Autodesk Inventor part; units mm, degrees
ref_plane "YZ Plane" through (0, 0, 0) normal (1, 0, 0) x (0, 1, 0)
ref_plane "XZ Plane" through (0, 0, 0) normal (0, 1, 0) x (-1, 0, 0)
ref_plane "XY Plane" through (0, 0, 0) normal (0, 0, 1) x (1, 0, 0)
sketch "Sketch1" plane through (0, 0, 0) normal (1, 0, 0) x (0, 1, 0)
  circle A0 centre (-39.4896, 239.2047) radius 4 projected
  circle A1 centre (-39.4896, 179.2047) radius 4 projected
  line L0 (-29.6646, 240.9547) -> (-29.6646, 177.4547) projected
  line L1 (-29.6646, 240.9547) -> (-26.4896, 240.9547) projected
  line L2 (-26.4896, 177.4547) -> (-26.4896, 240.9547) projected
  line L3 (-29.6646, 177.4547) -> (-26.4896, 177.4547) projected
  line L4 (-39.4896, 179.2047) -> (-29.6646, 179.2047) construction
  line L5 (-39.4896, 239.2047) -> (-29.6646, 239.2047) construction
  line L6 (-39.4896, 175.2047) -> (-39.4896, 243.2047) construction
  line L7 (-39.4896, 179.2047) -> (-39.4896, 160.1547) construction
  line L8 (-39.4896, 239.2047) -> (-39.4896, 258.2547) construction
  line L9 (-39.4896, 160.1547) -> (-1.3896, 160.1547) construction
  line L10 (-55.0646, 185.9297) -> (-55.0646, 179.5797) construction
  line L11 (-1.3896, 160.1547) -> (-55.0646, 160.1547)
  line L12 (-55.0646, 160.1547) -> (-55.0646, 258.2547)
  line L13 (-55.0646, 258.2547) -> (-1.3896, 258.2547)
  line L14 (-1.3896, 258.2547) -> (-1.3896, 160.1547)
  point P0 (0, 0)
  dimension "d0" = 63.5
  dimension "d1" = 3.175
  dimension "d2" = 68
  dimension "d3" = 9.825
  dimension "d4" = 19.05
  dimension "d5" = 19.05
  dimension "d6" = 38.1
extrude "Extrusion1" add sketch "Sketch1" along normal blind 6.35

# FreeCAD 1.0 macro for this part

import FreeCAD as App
import Part
import Sketcher
Q = App.Units.Quantity


def add_polygon(sketch, points):
    """Adds a closed chain of lines whose ends are joined by coincident constraints."""
    first, n = sketch.GeometryCount, len(points)
    for a, b in zip(points, points[1:] + points[:1]):
        sketch.addGeometry(Part.LineSegment(App.Vector(*a, 0), App.Vector(*b, 0)), False)
    for i in range(n):
        sketch.addConstraint(Sketcher.Constraint("Coincident", first + i, 2, first + (i + 1) % n, 1))

doc = App.newDocument("Part")
body = doc.addObject("PartDesign::Body", "Body")

# Sketch on YZ plane
sketch1 = body.newObject("Sketcher::SketchObject", "Sketch")
sketch1.AttachmentSupport = (doc.getObject("YZ_Plane"), [""])
sketch1.MapMode = "FlatFace"
add_polygon(sketch1, [(-55.1, 160.2), (-1.4, 160.2), (-1.4, 258.3), (-55.1, 258.3)])  # lines 0-3
sketch1.addGeometry(Part.Circle(App.Vector(-39.5, 179.2, 0), App.Vector(0, 0, 1), 4), False)  # 4
add_polygon(sketch1, [(-29.7, 177.5), (-29.7, 241), (-26.5, 241), (-26.5, 177.5)])  # lines 5-8
sketch1.addGeometry(Part.Circle(App.Vector(-39.5, 239.2, 0), App.Vector(0, 0, 1), 4), False)  # 9
sketch1.addConstraint([
    Sketcher.Constraint("Horizontal", 0),
    Sketcher.Constraint("Vertical", 1),
    Sketcher.Constraint("Horizontal", 2),
    Sketcher.Constraint("Vertical", 3),
    Sketcher.Constraint("Vertical", 5),
    Sketcher.Constraint("Horizontal", 6),
    Sketcher.Constraint("Vertical", 7),
    Sketcher.Constraint("Horizontal", 8),
    Sketcher.Constraint("Equal", 4, 9),
    Sketcher.Constraint("Vertical", 4, 3, 9, 3),
    Sketcher.Constraint("DistanceY", 5, 1, 5, 2, Q("2.5 in")),
    Sketcher.Constraint("DistanceX", 4, 3, 0, 2, Q("1.5 in")),
    Sketcher.Constraint("DistanceX", 6, 1, 6, 2, Q("0.125 in")),
    Sketcher.Constraint("DistanceY", 0, 2, 4, 3, Q("0.75 in")),
    Sketcher.Constraint("DistanceY", 9, 3, 1, 2, Q("0.75 in")),
    Sketcher.Constraint("DistanceX", 2, 2, 5, 2, Q("1 in")),
    Sketcher.Constraint("DistanceX", 9, 3, 5, 2, Q("0.3868 in")),
    Sketcher.Constraint("Diameter", 4, Q("8 mm")),
    Sketcher.Constraint("DistanceY", 1, 1, 1, 2, Q("3.8622 in")),
    Sketcher.Constraint("DistanceX", 4, 3, -1, 1, Q("1.5547 in")),
    Sketcher.Constraint("DistanceY", -1, 1, 4, 3, Q("7.0553 in")),
    Sketcher.Constraint("DistanceY", -1, 1, 5, 2, Q("9.4864 in")),
])
pad1 = body.newObject("PartDesign::Pad", "Pad")
pad1.Profile = sketch1
pad1.Length = Q("0.25 in")

doc.recompute()
